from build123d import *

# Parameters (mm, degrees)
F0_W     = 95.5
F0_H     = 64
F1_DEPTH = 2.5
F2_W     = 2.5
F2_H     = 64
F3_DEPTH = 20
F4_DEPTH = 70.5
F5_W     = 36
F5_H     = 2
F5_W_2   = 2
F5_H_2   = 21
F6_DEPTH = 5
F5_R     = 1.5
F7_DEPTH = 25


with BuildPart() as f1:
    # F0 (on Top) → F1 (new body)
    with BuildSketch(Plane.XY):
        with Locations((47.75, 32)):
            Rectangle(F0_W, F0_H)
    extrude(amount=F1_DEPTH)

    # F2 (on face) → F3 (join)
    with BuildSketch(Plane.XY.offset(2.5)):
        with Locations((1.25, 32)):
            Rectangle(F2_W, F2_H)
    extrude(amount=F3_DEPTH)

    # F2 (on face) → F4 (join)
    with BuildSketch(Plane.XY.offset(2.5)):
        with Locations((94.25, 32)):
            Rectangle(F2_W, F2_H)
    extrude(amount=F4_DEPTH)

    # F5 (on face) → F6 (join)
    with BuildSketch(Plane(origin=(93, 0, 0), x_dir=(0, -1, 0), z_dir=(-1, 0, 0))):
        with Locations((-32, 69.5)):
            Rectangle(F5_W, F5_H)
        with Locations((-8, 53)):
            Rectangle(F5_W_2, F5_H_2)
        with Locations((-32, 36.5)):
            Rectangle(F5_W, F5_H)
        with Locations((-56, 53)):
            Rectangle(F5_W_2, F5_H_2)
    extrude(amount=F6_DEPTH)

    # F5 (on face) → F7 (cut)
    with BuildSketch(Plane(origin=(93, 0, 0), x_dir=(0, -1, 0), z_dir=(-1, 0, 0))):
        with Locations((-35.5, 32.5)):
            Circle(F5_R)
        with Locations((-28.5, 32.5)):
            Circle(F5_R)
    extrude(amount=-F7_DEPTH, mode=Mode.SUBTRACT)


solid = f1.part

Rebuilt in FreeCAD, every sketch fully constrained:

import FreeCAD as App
import Part
import Sketcher
Q = App.Units.Quantity


def add_polygon(sketch, points):
    """Adds a closed chain of lines whose ends are joined by coincident constraints."""
    first, n = sketch.GeometryCount, len(points)
    for a, b in zip(points, points[1:] + points[:1]):
        sketch.addGeometry(Part.LineSegment(App.Vector(*a, 0), App.Vector(*b, 0)), False)
    for i in range(n):
        sketch.addConstraint(Sketcher.Constraint("Coincident", first + i, 2, first + (i + 1) % n, 1))

doc = App.newDocument("Part")
body = doc.addObject("PartDesign::Body", "Body")

# Sketch on XY plane
sketch1 = doc.addObject("Sketcher::SketchObject", "Sketch")
body.addObject(sketch1)
sketch1.AttachmentSupport = (doc.XY_Plane, [""])
sketch1.MapMode = "FlatFace"
add_polygon(sketch1, [(0, 64), (0, 0), (95.5, 0), (95.5, 64)])  # lines 0-3
sketch1.addConstraint([
    Sketcher.Constraint("Vertical", 0),
    Sketcher.Constraint("Horizontal", 1),
    Sketcher.Constraint("Vertical", 2),
    Sketcher.Constraint("Horizontal", 3),
    Sketcher.Constraint("Coincident", 0, 2, -1, 1),
    Sketcher.Constraint("DistanceY", 0, 2, 0, 1, Q("64 mm")),
    Sketcher.Constraint("DistanceX", 1, 1, 1, 2, Q("95.5 mm")),
])
pad1 = doc.addObject("PartDesign::Pad", "Pad")
body.addObject(pad1)
pad1.Profile = sketch1
pad1.Length = 2.5

# Sketch on XY plane
sketch2 = doc.addObject("Sketcher::SketchObject", "Sketch001")
body.addObject(sketch2)
sketch2.AttachmentSupport = (doc.XY_Plane, [""])
sketch2.MapMode = "FlatFace"
sketch2.AttachmentOffset = App.Placement(App.Vector(0, 0, 2.5), App.Rotation())
add_polygon(sketch2, [(0, 64), (0, 0), (2.5, 0), (2.5, 64)])  # lines 0-3
sketch2.addConstraint([
    Sketcher.Constraint("Vertical", 0),
    Sketcher.Constraint("Horizontal", 1),
    Sketcher.Constraint("Vertical", 2),
    Sketcher.Constraint("Horizontal", 3),
    Sketcher.Constraint("Coincident", 0, 2, -1, 1),
    Sketcher.Constraint("DistanceY", 0, 2, 0, 1, Q("64 mm")),
    Sketcher.Constraint("DistanceX", 1, 1, 1, 2, Q("2.5 mm")),
])
pad2 = doc.addObject("PartDesign::Pad", "Pad001")
body.addObject(pad2)
pad2.Profile = sketch2
pad2.Length = 20

# Sketch on XY plane
sketch3 = doc.addObject("Sketcher::SketchObject", "Sketch002")
body.addObject(sketch3)
sketch3.AttachmentSupport = (doc.XY_Plane, [""])
sketch3.MapMode = "FlatFace"
sketch3.AttachmentOffset = App.Placement(App.Vector(0, 0, 2.5), App.Rotation())
add_polygon(sketch3, [(93, 64), (93, 0), (95.5, 0), (95.5, 64)])  # lines 0-3
sketch3.addConstraint([
    Sketcher.Constraint("Vertical", 0),
    Sketcher.Constraint("Horizontal", 1),
    Sketcher.Constraint("Vertical", 2),
    Sketcher.Constraint("Horizontal", 3),
    Sketcher.Constraint("PointOnObject", 0, 2, -1),
    Sketcher.Constraint("DistanceY", 0, 2, 0, 1, Q("64 mm")),
    Sketcher.Constraint("DistanceX", 1, 1, 1, 2, Q("2.5 mm")),
    Sketcher.Constraint("DistanceX", -1, 1, 0, 2, Q("93 mm")),
])
pad3 = doc.addObject("PartDesign::Pad", "Pad002")
body.addObject(pad3)
pad3.Profile = sketch3
pad3.Length = 70.5

# Sketch on YZ plane
sketch4 = doc.addObject("Sketcher::SketchObject", "Sketch003")
body.addObject(sketch4)
sketch4.AttachmentSupport = (doc.YZ_Plane, [""])
sketch4.MapMode = "FlatFace"
sketch4.AttachmentOffset = App.Placement(App.Vector(0, 0, 93), App.Rotation())
add_polygon(sketch4, [(50, 70.5), (50, 68.5), (14, 68.5), (14, 70.5)])  # lines 0-3
add_polygon(sketch4, [(9, 63.5), (9, 42.5), (7, 42.5), (7, 63.5)])  # lines 4-7
add_polygon(sketch4, [(50, 37.5), (50, 35.5), (14, 35.5), (14, 37.5)])  # lines 8-11
add_polygon(sketch4, [(57, 63.5), (57, 42.5), (55, 42.5), (55, 63.5)])  # lines 12-15
sketch4.addConstraint([
    Sketcher.Constraint("Vertical", 0),
    Sketcher.Constraint("Horizontal", 1),
    Sketcher.Constraint("Vertical", 2),
    Sketcher.Constraint("Horizontal", 3),
    Sketcher.Constraint("Vertical", 4),
    Sketcher.Constraint("Horizontal", 5),
    Sketcher.Constraint("Vertical", 6),
    Sketcher.Constraint("Horizontal", 7),
    Sketcher.Constraint("Vertical", 8),
    Sketcher.Constraint("Horizontal", 9),
    Sketcher.Constraint("Vertical", 10),
    Sketcher.Constraint("Horizontal", 11),
    Sketcher.Constraint("Vertical", 12),
    Sketcher.Constraint("Horizontal", 13),
    Sketcher.Constraint("Vertical", 14),
    Sketcher.Constraint("Horizontal", 15),
    Sketcher.Constraint("Horizontal", 5, 2, 12, 2),
    Sketcher.Constraint("Horizontal", 7, 2, 14, 2),
    Sketcher.Constraint("Vertical", 3, 2, 8, 2),
    Sketcher.Constraint("Vertical", 2, 2, 9, 2),
    Sketcher.Constraint("Equal", 7, 13),
    Sketcher.Constraint("Equal", 15, 0),
    Sketcher.Constraint("Equal", 2, 8),
    Sketcher.Constraint("DistanceX", 1, 2, 1, 1, Q("36 mm")),
    Sketcher.Constraint("DistanceX", 5, 2, 5, 1, Q("2 mm")),
    Sketcher.Constraint("DistanceY", 4, 2, 4, 1, Q("21 mm")),
    Sketcher.Constraint("DistanceX", -1, 1, 0, 2, Q("50 mm")),
    Sketcher.Constraint("DistanceX", -1, 1, 4, 2, Q("9 mm")),
    Sketcher.Constraint("DistanceX", -1, 1, 12, 2, Q("57 mm")),
    Sketcher.Constraint("DistanceY", 4, 2, 1, 2, Q("26 mm")),
    Sketcher.Constraint("DistanceY", 8, 2, 0, 2, Q("33 mm")),
    Sketcher.Constraint("DistanceY", -1, 1, 0, 2, Q("68.5 mm")),
])
pad4 = doc.addObject("PartDesign::Pad", "Pad003")
body.addObject(pad4)
pad4.Profile = sketch4
pad4.Length = 5
pad4.Reversed = True

# Sketch on YZ plane
sketch5 = doc.addObject("Sketcher::SketchObject", "Sketch004")
body.addObject(sketch5)
sketch5.AttachmentSupport = (doc.YZ_Plane, [""])
sketch5.MapMode = "FlatFace"
sketch5.AttachmentOffset = App.Placement(App.Vector(0, 0, 93), App.Rotation())
sketch5.addGeometry([
    Part.Circle(App.Vector(35.5, 32.5, 0), App.Vector(0, 0, 1), 1.5),
    Part.Circle(App.Vector(28.5, 32.5, 0), App.Vector(0, 0, 1), 1.5),
], False)
sketch5.addConstraint([
    Sketcher.Constraint("Equal", 0, 1),
    Sketcher.Constraint("Horizontal", 0, 3, 1, 3),
    Sketcher.Constraint("Diameter", 0, Q("3 mm")),
    Sketcher.Constraint("DistanceX", 1, 3, 0, 3, Q("7 mm")),
    Sketcher.Constraint("DistanceX", -1, 1, 0, 3, Q("35.5 mm")),
    Sketcher.Constraint("DistanceY", -1, 1, 0, 3, Q("32.5 mm")),
])
pocket1 = doc.addObject("PartDesign::Pocket", "Pocket")
body.addObject(pocket1)
pocket1.Profile = sketch5
pocket1.Length = 25
pocket1.Reversed = True

doc.recompute()
